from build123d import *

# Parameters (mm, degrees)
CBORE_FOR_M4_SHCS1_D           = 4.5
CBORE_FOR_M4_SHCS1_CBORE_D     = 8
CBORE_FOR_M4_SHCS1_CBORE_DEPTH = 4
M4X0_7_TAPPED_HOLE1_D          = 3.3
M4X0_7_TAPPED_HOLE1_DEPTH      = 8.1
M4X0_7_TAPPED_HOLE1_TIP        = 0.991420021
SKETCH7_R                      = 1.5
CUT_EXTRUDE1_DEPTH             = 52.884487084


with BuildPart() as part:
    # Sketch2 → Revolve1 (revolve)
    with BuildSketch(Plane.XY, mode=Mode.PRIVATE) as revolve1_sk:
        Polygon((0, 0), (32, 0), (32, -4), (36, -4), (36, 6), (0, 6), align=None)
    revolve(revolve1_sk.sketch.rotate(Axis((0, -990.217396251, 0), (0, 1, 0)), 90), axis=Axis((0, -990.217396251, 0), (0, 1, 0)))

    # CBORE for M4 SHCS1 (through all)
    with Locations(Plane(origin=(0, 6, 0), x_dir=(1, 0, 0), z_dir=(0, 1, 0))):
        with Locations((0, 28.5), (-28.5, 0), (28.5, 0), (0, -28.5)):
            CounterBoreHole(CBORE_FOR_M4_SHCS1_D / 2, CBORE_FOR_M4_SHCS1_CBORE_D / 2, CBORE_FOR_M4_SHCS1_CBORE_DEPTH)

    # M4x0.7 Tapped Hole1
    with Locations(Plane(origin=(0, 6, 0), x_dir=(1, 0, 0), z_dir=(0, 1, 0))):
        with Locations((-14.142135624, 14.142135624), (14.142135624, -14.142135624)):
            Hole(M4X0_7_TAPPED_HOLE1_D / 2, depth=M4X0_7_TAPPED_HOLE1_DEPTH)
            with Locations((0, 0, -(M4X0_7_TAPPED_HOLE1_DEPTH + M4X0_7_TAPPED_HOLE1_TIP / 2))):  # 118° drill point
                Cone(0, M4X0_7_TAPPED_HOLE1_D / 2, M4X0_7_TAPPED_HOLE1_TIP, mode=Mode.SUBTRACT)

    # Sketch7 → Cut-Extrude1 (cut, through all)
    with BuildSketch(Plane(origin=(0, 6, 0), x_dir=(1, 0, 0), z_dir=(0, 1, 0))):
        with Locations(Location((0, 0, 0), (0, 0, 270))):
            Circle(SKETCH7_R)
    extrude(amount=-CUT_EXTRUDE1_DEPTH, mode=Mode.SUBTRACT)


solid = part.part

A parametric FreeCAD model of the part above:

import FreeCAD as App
import Part
import Sketcher
Q = App.Units.Quantity

doc = App.newDocument("Part")
body = doc.addObject("PartDesign::Body", "Body")

# Sketch on XY plane
sketch1 = body.newObject("Sketcher::SketchObject", "Sketch")
sketch1.AttachmentSupport = (doc.getObject("XY_Plane"), [""])
sketch1.MapMode = "FlatFace"
sketch1.addGeometry([
    Part.LineSegment(App.Vector(0, 0, 0), App.Vector(32, 0, 0)),  # 0
    Part.LineSegment(App.Vector(32, 0, 0), App.Vector(32, -4, 0)),  # 1
    Part.LineSegment(App.Vector(32, -4, 0), App.Vector(36, -4, 0)),  # 2
    Part.LineSegment(App.Vector(36, -4, 0), App.Vector(36, 6, 0)),  # 3
    Part.LineSegment(App.Vector(36, 6, 0), App.Vector(0, 6, 0)),  # 4
    Part.LineSegment(App.Vector(0, 6, 0), App.Vector(0, 0, 0)),  # 5
], False)
sketch1.addConstraint([
    Sketcher.Constraint("Coincident", 0, 2, 1, 1),
    Sketcher.Constraint("Coincident", 1, 2, 2, 1),
    Sketcher.Constraint("Coincident", 2, 2, 3, 1),
    Sketcher.Constraint("Coincident", 3, 2, 4, 1),
    Sketcher.Constraint("Coincident", 4, 2, 5, 1),
    Sketcher.Constraint("Coincident", 5, 2, 0, 1),
    Sketcher.Constraint("Horizontal", 0),
    Sketcher.Constraint("Vertical", 1),
    Sketcher.Constraint("Horizontal", 2),
    Sketcher.Constraint("Vertical", 3),
    Sketcher.Constraint("Horizontal", 4),
    Sketcher.Constraint("Vertical", 5),
    Sketcher.Constraint("Coincident", 5, 2, -1, 1),
    Sketcher.Constraint("Equal", 2, 1),
    Sketcher.Constraint("DistanceX", 0, 1, 0, 2, Q("32 mm")),
    Sketcher.Constraint("DistanceX", 2, 1, 2, 2, Q("4 mm")),
    Sketcher.Constraint("DistanceY", 3, 1, 3, 2, Q("10 mm")),
])
revolution = body.newObject("PartDesign::Revolution", "Revolution")
revolution.Profile = sketch1
revolution.ReferenceAxis = (sketch1, ["V_Axis"])
revolution.Angle = 360

# Sketch on XZ plane
sketch2 = body.newObject("Sketcher::SketchObject", "Sketch001")
sketch2.AttachmentSupport = (doc.getObject("XZ_Plane"), [""])
sketch2.MapMode = "FlatFace"
sketch2.AttachmentOffset = App.Placement(App.Vector(0, 0, -6), App.Rotation())
sketch2.addGeometry([
    Part.Circle(App.Vector(0, -28.5, 0), App.Vector(0, 0, 1), 2.2),
    Part.Circle(App.Vector(-28.5, 0, 0), App.Vector(0, 0, 1), 2.2),
    Part.Circle(App.Vector(28.5, 0, 0), App.Vector(0, 0, 1), 2.2),
    Part.Circle(App.Vector(0, 28.5, 0), App.Vector(0, 0, 1), 2.2),
], False)
sketch2.addConstraint([
    Sketcher.Constraint("Equal", 0, 1),
    Sketcher.Constraint("Equal", 1, 2),
    Sketcher.Constraint("Equal", 2, 3),
    Sketcher.Constraint("Symmetric", 1, 3, 2, 3, -1, 1),
    Sketcher.Constraint("Symmetric", 0, 3, 3, 3, -1, 1),
    Sketcher.Constraint("PointOnObject", 0, 3, -2),
    Sketcher.Constraint("PointOnObject", 1, 3, -1),
    Sketcher.Constraint("Diameter", 0, Q("4.5 mm")),
    Sketcher.Constraint("DistanceX", 1, 3, 2, 3, Q("57 mm")),
    Sketcher.Constraint("DistanceY", 0, 3, 3, 3, Q("57 mm")),
])
doc.recompute()
hole = body.newObject("PartDesign::Hole", "Hole")
hole.Profile = sketch2
hole.ThreadType = "None"
hole.Diameter = 4.5
hole.DepthType = "ThroughAll"
hole.HoleCutType = "Counterbore"
hole.HoleCutDiameter = 8
hole.HoleCutDepth = 4
hole.Reversed = True

# Sketch on XZ plane
sketch3 = body.newObject("Sketcher::SketchObject", "Sketch002")
sketch3.AttachmentSupport = (doc.getObject("XZ_Plane"), [""])
sketch3.MapMode = "FlatFace"
sketch3.AttachmentOffset = App.Placement(App.Vector(0, 0, -6), App.Rotation())
sketch3.addGeometry([
    Part.Circle(App.Vector(-14.1, -14.1, 0), App.Vector(0, 0, 1), 1.6),
    Part.Circle(App.Vector(14.1, 14.1, 0), App.Vector(0, 0, 1), 1.6),
], False)
sketch3.addConstraint([
    Sketcher.Constraint("Equal", 0, 1),
    Sketcher.Constraint("Symmetric", 0, 3, 1, 3, -1, 1),
    Sketcher.Constraint("Diameter", 0, Q("3.3 mm")),
    Sketcher.Constraint("DistanceX", 0, 3, 1, 3, Q("28.284271 mm")),
    Sketcher.Constraint("DistanceY", 0, 3, 1, 3, Q("28.284271 mm")),
])
doc.recompute()
hole2 = body.newObject("PartDesign::Hole", "Hole001")
hole2.Profile = sketch3
hole2.ThreadType = "None"
hole2.Diameter = 3.3
hole2.DepthType = "Dimension"
hole2.Depth = 8.1
hole2.DrillPoint = "Angled"
hole2.DrillPointAngle = 118
hole2.Reversed = True

# Sketch on XZ plane
sketch4 = body.newObject("Sketcher::SketchObject", "Sketch003")
sketch4.AttachmentSupport = (doc.getObject("XZ_Plane"), [""])
sketch4.MapMode = "FlatFace"
sketch4.AttachmentOffset = App.Placement(App.Vector(0, 0, -6), App.Rotation())
sketch4.addGeometry(Part.Circle(App.Vector(0, 0, 0), App.Vector(0, 0, 1), 1.5), False)
sketch4.addConstraint([
    Sketcher.Constraint("Coincident", 0, 3, -1, 1),
    Sketcher.Constraint("Diameter", 0, Q("3 mm")),
])
pocket1 = body.newObject("PartDesign::Pocket", "Pocket")
pocket1.Profile = sketch4
pocket1.Type = "ThroughAll"
pocket1.Reversed = True

doc.recompute()
